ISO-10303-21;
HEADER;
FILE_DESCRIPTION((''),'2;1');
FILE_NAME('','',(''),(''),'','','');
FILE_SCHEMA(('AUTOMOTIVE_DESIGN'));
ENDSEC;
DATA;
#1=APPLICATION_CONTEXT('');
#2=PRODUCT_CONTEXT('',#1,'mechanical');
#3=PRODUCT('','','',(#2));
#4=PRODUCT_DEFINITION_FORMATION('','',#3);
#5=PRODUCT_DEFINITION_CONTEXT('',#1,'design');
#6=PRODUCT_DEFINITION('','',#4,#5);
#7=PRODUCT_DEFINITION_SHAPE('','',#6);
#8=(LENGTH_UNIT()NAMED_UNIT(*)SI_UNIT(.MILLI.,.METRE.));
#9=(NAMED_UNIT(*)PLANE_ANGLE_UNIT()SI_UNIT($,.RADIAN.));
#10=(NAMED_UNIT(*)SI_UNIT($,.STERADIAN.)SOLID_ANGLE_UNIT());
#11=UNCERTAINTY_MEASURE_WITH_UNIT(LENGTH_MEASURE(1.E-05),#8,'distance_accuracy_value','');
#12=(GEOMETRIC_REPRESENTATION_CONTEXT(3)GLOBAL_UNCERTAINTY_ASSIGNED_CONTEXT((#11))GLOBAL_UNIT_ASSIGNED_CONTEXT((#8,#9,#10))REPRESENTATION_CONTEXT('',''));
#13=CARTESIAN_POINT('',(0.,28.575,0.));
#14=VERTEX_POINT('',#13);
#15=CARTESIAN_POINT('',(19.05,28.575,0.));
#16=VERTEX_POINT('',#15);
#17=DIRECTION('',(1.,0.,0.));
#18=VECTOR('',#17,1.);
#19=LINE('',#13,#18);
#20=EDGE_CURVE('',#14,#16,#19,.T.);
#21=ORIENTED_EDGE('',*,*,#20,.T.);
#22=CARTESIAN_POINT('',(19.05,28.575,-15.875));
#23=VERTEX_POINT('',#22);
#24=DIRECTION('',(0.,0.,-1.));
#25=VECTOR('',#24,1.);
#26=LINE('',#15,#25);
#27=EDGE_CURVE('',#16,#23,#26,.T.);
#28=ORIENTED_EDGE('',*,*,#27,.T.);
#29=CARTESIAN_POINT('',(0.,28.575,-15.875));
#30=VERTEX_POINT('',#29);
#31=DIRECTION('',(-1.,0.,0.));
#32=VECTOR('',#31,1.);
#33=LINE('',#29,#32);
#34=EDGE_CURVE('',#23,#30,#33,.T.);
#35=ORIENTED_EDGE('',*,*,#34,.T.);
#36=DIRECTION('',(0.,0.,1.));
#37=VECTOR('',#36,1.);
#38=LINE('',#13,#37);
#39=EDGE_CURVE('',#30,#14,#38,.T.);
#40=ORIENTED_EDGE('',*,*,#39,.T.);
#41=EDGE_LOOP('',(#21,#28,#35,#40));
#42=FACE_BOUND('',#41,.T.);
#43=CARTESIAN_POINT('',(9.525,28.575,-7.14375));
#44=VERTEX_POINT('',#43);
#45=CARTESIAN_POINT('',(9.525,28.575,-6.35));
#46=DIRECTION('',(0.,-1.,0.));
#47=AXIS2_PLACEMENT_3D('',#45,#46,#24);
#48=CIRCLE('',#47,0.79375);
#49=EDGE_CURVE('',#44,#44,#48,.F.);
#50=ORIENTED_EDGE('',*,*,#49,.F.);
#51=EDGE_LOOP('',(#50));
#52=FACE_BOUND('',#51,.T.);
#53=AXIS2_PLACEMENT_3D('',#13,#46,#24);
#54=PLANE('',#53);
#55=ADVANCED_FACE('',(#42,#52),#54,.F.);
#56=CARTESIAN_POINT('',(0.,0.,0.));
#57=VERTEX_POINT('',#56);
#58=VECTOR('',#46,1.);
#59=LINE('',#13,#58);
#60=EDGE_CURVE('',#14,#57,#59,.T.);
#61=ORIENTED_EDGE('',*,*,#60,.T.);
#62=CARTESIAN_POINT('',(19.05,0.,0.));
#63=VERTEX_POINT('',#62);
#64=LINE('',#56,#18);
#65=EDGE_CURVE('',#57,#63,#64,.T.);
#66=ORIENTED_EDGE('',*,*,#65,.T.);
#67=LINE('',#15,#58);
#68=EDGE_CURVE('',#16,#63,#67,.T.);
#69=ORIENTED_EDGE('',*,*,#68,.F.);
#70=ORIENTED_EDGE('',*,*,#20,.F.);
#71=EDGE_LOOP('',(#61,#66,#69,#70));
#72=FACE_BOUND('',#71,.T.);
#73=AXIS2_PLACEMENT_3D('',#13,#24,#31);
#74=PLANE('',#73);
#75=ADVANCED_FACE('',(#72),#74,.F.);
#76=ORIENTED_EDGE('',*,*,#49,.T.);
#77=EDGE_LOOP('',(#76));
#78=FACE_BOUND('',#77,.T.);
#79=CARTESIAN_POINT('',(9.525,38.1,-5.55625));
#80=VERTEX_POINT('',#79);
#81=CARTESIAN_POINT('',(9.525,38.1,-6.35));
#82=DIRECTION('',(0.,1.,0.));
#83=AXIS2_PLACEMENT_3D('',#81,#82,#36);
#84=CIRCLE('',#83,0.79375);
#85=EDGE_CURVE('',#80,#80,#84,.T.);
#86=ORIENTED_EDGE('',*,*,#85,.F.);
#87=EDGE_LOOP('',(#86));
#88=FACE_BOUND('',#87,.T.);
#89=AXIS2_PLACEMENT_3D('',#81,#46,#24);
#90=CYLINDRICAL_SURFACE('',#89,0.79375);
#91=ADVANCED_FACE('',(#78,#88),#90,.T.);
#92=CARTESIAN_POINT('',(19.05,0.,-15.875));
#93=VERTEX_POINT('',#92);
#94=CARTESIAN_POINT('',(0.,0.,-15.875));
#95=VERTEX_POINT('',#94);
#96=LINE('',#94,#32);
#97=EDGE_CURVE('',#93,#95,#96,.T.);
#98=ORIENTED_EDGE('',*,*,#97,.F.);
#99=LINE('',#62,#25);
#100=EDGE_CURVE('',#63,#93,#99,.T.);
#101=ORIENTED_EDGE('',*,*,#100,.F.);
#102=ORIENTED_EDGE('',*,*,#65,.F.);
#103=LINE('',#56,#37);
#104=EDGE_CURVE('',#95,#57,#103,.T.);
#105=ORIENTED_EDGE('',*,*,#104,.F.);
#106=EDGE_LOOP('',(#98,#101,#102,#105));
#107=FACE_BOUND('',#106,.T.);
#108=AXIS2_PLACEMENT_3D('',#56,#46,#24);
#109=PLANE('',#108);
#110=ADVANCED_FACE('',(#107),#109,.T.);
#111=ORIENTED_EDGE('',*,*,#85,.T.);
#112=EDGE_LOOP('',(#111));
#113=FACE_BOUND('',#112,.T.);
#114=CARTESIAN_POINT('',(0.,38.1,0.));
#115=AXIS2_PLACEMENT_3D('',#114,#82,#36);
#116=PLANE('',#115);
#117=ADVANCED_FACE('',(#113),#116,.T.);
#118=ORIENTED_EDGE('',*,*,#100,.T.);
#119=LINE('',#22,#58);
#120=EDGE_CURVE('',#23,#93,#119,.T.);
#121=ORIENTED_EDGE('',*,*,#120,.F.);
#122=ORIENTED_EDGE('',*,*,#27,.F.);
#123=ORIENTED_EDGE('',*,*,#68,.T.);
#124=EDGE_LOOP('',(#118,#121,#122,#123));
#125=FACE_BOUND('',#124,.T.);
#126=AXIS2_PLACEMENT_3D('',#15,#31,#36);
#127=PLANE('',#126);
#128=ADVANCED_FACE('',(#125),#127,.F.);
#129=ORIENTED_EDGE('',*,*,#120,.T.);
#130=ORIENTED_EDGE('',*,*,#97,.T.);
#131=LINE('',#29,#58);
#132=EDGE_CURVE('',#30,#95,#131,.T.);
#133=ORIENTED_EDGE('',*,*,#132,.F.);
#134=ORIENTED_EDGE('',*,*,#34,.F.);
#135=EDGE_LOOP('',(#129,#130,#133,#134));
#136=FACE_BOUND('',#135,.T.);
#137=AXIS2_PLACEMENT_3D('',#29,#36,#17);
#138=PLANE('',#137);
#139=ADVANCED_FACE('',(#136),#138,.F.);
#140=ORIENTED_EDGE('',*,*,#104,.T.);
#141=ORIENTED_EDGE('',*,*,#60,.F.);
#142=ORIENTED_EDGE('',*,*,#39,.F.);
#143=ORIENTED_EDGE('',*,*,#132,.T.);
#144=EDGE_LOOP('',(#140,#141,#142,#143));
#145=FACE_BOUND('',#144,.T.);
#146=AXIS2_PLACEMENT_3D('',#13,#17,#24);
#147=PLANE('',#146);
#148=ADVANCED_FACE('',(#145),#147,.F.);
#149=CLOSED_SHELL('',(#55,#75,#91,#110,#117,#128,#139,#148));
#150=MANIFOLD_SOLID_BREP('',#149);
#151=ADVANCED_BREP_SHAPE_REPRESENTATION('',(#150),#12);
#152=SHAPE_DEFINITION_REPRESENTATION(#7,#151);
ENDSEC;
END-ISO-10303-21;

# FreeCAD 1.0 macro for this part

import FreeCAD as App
import Part
import Sketcher
Q = App.Units.Quantity


def add_polygon(sketch, points):
    """Adds a closed chain of lines whose ends are joined by coincident constraints."""
    first, n = sketch.GeometryCount, len(points)
    for a, b in zip(points, points[1:] + points[:1]):
        sketch.addGeometry(Part.LineSegment(App.Vector(*a, 0), App.Vector(*b, 0)), False)
    for i in range(n):
        sketch.addConstraint(Sketcher.Constraint("Coincident", first + i, 2, first + (i + 1) % n, 1))

doc = App.newDocument("Part")
body = doc.addObject("PartDesign::Body", "Body")

# Sketch on XZ plane
sketch1 = doc.addObject("Sketcher::SketchObject", "Sketch")
body.addObject(sketch1)
sketch1.AttachmentSupport = (doc.XZ_Plane, [""])
sketch1.MapMode = "FlatFace"
add_polygon(sketch1, [(0, -16), (0, 0), (19, 0), (19, -16)])  # lines 0-3
sketch1.addConstraint(Sketcher.Constraint("Vertical", 0))
sketch1.addConstraint(Sketcher.Constraint("Horizontal", 1))
sketch1.addConstraint(Sketcher.Constraint("Vertical", 2))
sketch1.addConstraint(Sketcher.Constraint("Horizontal", 3))
sketch1.addConstraint(Sketcher.Constraint("Coincident", 0, 2, -1, 1))
sketch1.addConstraint(Sketcher.Constraint("DistanceX", 1, 1, 1, 2, Q("0.75 in")))
sketch1.addConstraint(Sketcher.Constraint("DistanceY", 0, 1, 0, 2, Q("0.625 in")))
pad1 = doc.addObject("PartDesign::Pad", "Pad")
body.addObject(pad1)
pad1.Profile = sketch1
pad1.Length = Q("1.125 in")
pad1.Reversed = True

# Sketch on XZ plane
sketch2 = doc.addObject("Sketcher::SketchObject", "Sketch001")
body.addObject(sketch2)
sketch2.AttachmentSupport = (doc.XZ_Plane, [""])
sketch2.MapMode = "FlatFace"
sketch2.AttachmentOffset = App.Placement(App.Vector(0, 0, -1.125 * 25.4), App.Rotation())
sketch2.addGeometry(Part.Circle(App.Vector(9.5, -6.3, 0), App.Vector(0, 0, 1), 0.8), False)
sketch2.addConstraint(Sketcher.Constraint("Diameter", 0, Q("0.0625 in")))
sketch2.addConstraint(Sketcher.Constraint("DistanceY", 0, 3, -1, 1, Q("0.25 in")))
sketch2.addConstraint(Sketcher.Constraint("DistanceX", -1, 1, 0, 3, Q("0.375 in")))
pad2 = doc.addObject("PartDesign::Pad", "Pad001")
body.addObject(pad2)
pad2.Profile = sketch2
pad2.Length = Q("0.375 in")
pad2.Reversed = True

doc.recompute()
